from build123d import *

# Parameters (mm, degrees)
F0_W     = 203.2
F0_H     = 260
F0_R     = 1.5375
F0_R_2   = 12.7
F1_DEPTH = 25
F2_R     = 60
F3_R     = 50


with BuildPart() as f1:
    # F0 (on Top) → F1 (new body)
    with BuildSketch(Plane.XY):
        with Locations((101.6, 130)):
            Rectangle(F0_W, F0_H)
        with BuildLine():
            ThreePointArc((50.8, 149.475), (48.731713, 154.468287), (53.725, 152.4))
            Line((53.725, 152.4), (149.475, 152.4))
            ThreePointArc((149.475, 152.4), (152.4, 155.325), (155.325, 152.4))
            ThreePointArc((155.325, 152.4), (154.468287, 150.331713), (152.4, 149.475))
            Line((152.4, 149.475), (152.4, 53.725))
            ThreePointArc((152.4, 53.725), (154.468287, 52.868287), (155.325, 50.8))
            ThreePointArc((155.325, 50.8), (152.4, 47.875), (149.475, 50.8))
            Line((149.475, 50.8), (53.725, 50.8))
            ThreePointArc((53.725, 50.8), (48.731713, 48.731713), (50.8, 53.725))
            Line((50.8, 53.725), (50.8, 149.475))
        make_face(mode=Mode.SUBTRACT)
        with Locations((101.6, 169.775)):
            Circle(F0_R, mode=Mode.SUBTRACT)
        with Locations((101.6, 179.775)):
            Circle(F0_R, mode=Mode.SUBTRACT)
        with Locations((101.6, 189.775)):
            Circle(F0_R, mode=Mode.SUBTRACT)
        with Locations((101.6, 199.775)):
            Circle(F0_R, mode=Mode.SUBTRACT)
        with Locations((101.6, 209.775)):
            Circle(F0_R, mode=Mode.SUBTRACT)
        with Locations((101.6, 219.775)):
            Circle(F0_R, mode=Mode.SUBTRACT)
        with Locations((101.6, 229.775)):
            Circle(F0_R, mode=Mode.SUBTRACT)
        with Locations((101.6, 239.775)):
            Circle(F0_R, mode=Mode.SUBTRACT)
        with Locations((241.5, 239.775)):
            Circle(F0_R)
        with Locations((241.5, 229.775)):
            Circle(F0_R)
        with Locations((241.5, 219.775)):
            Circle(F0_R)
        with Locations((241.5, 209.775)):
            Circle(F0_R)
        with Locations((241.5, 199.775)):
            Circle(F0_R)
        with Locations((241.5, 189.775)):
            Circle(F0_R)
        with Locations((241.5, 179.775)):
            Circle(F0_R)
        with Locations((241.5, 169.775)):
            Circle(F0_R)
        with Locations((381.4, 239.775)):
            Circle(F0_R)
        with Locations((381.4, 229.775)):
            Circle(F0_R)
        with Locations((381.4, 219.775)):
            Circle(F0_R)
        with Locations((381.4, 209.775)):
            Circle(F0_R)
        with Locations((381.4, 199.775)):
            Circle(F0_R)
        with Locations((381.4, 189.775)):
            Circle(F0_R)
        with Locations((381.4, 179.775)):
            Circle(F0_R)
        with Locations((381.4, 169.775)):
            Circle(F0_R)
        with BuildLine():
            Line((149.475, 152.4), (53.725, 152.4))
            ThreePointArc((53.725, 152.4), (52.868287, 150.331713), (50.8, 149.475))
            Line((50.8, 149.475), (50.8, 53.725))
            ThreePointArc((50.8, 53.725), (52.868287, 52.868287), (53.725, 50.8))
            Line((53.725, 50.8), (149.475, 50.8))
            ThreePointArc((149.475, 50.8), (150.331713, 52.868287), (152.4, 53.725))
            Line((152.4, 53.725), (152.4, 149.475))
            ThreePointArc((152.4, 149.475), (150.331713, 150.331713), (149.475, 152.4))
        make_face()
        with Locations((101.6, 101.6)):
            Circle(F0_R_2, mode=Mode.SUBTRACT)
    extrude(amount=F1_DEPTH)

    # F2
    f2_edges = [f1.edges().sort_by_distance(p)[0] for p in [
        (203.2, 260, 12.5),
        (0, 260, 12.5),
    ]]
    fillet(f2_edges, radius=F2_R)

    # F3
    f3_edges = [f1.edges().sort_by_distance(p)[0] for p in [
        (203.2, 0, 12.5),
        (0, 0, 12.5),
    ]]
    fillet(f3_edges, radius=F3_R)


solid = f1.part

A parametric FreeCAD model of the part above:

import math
import FreeCAD as App
import Part
import Sketcher

V = App.Vector
Q = App.Units.Quantity


def edges_at(feature, points):
    """Names of the edges that pass closest to the given points."""
    edges = feature.Shape.Edges
    near = lambda p: min(range(len(edges)), key=lambda i: edges[i].distToShape(Part.Vertex(*p))[0])
    return sorted({f"Edge{near(p) + 1}" for p in points})

doc = App.newDocument("Part")
params = doc.addObject("Spreadsheet::Sheet", "Params")
for row, (alias, value) in enumerate([
    ("sketch1_diameter", "25.4 mm"),
    ("sketch1_height", "260 mm"),
    ("sketch1_width", "203.2 mm"),
    ("pad1_length", "25 mm"),
    ("fillet_radius", "60 mm"),
    ("fillet2_radius", "50 mm"),
], start=1):
    params.set(f"A{row}", alias)
    params.set(f"B{row}", "=" + value)
    params.setAlias(f"B{row}", alias)

body = doc.addObject("PartDesign::Body", "Body")
body.AllowCompound = True

# Sketch on XY plane
sketch1 = body.newObject("Sketcher::SketchObject", "Sketch")
sketch1.AttachmentSupport = (doc.getObject("XY_Plane"), [""])
sketch1.MapMode = "FlatFace"
sketch1.addGeometry(Part.LineSegment(V(0, 260, 0), V(0, 0, 0)), False)
sketch1.addGeometry(Part.LineSegment(V(0, 0, 0), V(203.2, 0, 0)), False)
sketch1.addGeometry(Part.LineSegment(V(203.2, 0, 0), V(203.2, 260, 0)), False)
sketch1.addGeometry(Part.LineSegment(V(203.2, 260, 0), V(0, 260, 0)), False)
sketch1.addGeometry(Part.ArcOfCircle(Part.Circle(V(50.8, 50.8, 0), V(0, 0, 1), 2.925), math.radians(90.000004), math.radians(359.999996)), False)
sketch1.addGeometry(Part.ArcOfCircle(Part.Circle(V(50.799999, 50.799999, 0), V(0, 0, 1), 2.925001), math.radians(0.000022), math.radians(89.999978)), False)
sketch1.addGeometry(Part.Circle(V(101.6, 101.6, 0), V(0, 0, 1), 12.7), False)
sketch1.addGeometry(Part.ArcOfCircle(Part.Circle(V(152.4, 50.8, 0), V(0, 0, 1), 2.925), math.radians(180), math.radians(360)), False)
sketch1.addGeometry(Part.ArcOfCircle(Part.Circle(V(152.400001, 50.799999, 0), V(0, 0, 1), 2.925001), math.radians(90.000022), math.radians(179.999978)), False)
sketch1.addGeometry(Part.ArcOfCircle(Part.Circle(V(152.399999, 50.799999, 0), V(0, 0, 1), 2.925001), math.radians(0.000022), math.radians(89.999978)), False)
sketch1.addGeometry(Part.ArcOfCircle(Part.Circle(V(50.8, 152.4, 0), V(0, 0, 1), 2.925), math.radians(0.000004), math.radians(269.999996)), False)
sketch1.addGeometry(Part.ArcOfCircle(Part.Circle(V(50.799999, 152.400001, 0), V(0, 0, 1), 2.925001), math.radians(-89.999978), math.radians(-0.000022)), False)
sketch1.addGeometry(Part.Circle(V(101.6, 169.775, 0), V(0, 0, 1), 1.5375), False)
sketch1.addGeometry(Part.Circle(V(101.6, 179.775, 0), V(0, 0, 1), 1.5375), False)
sketch1.addGeometry(Part.Circle(V(101.6, 189.775, 0), V(0, 0, 1), 1.5375), False)
sketch1.addGeometry(Part.Circle(V(101.6, 199.775, 0), V(0, 0, 1), 1.5375), False)
sketch1.addGeometry(Part.Circle(V(101.6, 209.775, 0), V(0, 0, 1), 1.5375), False)
sketch1.addGeometry(Part.Circle(V(101.6, 219.775, 0), V(0, 0, 1), 1.5375), False)
sketch1.addGeometry(Part.Circle(V(101.6, 229.775, 0), V(0, 0, 1), 1.5375), False)
sketch1.addGeometry(Part.Circle(V(101.6, 239.775, 0), V(0, 0, 1), 1.5375), False)
sketch1.addGeometry(Part.ArcOfCircle(Part.Circle(V(152.4, 152.4, 0), V(0, 0, 1), 2.925), math.radians(0), math.radians(180)), False)
sketch1.addGeometry(Part.ArcOfCircle(Part.Circle(V(152.399999, 152.400001, 0), V(0, 0, 1), 2.925001), math.radians(-89.999978), math.radians(-0.000022)), False)
sketch1.addGeometry(Part.ArcOfCircle(Part.Circle(V(152.400001, 152.400001, 0), V(0, 0, 1), 2.925001), math.radians(-179.999978), math.radians(-90.000022)), False)
sketch1.addGeometry(Part.Circle(V(241.5, 239.775, 0), V(0, 0, 1), 1.5375), False)
sketch1.addGeometry(Part.Circle(V(241.5, 229.775, 0), V(0, 0, 1), 1.5375), False)
sketch1.addGeometry(Part.Circle(V(241.5, 219.775, 0), V(0, 0, 1), 1.5375), False)
sketch1.addGeometry(Part.Circle(V(241.5, 209.775, 0), V(0, 0, 1), 1.5375), False)
sketch1.addGeometry(Part.Circle(V(241.5, 199.775, 0), V(0, 0, 1), 1.5375), False)
sketch1.addGeometry(Part.Circle(V(241.5, 189.775, 0), V(0, 0, 1), 1.5375), False)
sketch1.addGeometry(Part.Circle(V(241.5, 179.775, 0), V(0, 0, 1), 1.5375), False)
sketch1.addGeometry(Part.Circle(V(241.5, 169.775, 0), V(0, 0, 1), 1.5375), False)
sketch1.addGeometry(Part.Circle(V(381.4, 239.775, 0), V(0, 0, 1), 1.5375), False)
sketch1.addGeometry(Part.Circle(V(381.4, 229.775, 0), V(0, 0, 1), 1.5375), False)
sketch1.addGeometry(Part.Circle(V(381.4, 219.775, 0), V(0, 0, 1), 1.5375), False)
sketch1.addGeometry(Part.Circle(V(381.4, 209.775, 0), V(0, 0, 1), 1.5375), False)
sketch1.addGeometry(Part.Circle(V(381.4, 199.775, 0), V(0, 0, 1), 1.5375), False)
sketch1.addGeometry(Part.Circle(V(381.4, 189.775, 0), V(0, 0, 1), 1.5375), False)
sketch1.addGeometry(Part.Circle(V(381.4, 179.775, 0), V(0, 0, 1), 1.5375), False)
sketch1.addGeometry(Part.Circle(V(381.4, 169.775, 0), V(0, 0, 1), 1.5375), False)
sketch1.addConstraint(Sketcher.Constraint("Coincident", 0, 2, 1, 1))
sketch1.addConstraint(Sketcher.Constraint("Coincident", 1, 2, 2, 1))
sketch1.addConstraint(Sketcher.Constraint("Coincident", 2, 2, 3, 1))
sketch1.addConstraint(Sketcher.Constraint("Coincident", 3, 2, 0, 1))
sketch1.addConstraint(Sketcher.Constraint("Tangent", 4, 1, 5, 2))
sketch1.addConstraint(Sketcher.Constraint("Coincident", 5, 1, 4, 2))
sketch1.addConstraint(Sketcher.Constraint("Tangent", 7, 1, 8, 2))
sketch1.addConstraint(Sketcher.Constraint("Tangent", 8, 1, 9, 2))
sketch1.addConstraint(Sketcher.Constraint("Tangent", 9, 1, 7, 2))
sketch1.addConstraint(Sketcher.Constraint("Tangent", 10, 1, 11, 2))
sketch1.addConstraint(Sketcher.Constraint("Coincident", 11, 1, 10, 2))
sketch1.addConstraint(Sketcher.Constraint("Tangent", 20, 1, 21, 2))
sketch1.addConstraint(Sketcher.Constraint("Tangent", 21, 1, 22, 2))
sketch1.addConstraint(Sketcher.Constraint("Tangent", 22, 1, 20, 2))
sketch1.addConstraint(Sketcher.Constraint("Vertical", 0))
sketch1.addConstraint(Sketcher.Constraint("Horizontal", 1))
sketch1.addConstraint(Sketcher.Constraint("Vertical", 2))
sketch1.addConstraint(Sketcher.Constraint("Horizontal", 3))
sketch1.addConstraint(Sketcher.Constraint("Coincident", 0, 2, -1, 1))
sketch1.addConstraint(Sketcher.Constraint("Equal", 5, 7))
sketch1.addConstraint(Sketcher.Constraint("Equal", 9, 10))
sketch1.addConstraint(Sketcher.Constraint("Equal", 12, 13))
sketch1.addConstraint(Sketcher.Constraint("Equal", 13, 14))
sketch1.addConstraint(Sketcher.Constraint("Equal", 14, 15))
sketch1.addConstraint(Sketcher.Constraint("Equal", 15, 16))
sketch1.addConstraint(Sketcher.Constraint("Equal", 16, 17))
sketch1.addConstraint(Sketcher.Constraint("Equal", 17, 18))
sketch1.addConstraint(Sketcher.Constraint("Equal", 18, 19))
sketch1.addConstraint(Sketcher.Constraint("Equal", 11, 20))
sketch1.addConstraint(Sketcher.Constraint("Equal", 19, 23))
sketch1.addConstraint(Sketcher.Constraint("Equal", 23, 24))
sketch1.addConstraint(Sketcher.Constraint("Equal", 24, 25))
sketch1.addConstraint(Sketcher.Constraint("Equal", 25, 26))
sketch1.addConstraint(Sketcher.Constraint("Equal", 26, 27))
sketch1.addConstraint(Sketcher.Constraint("Equal", 27, 28))
sketch1.addConstraint(Sketcher.Constraint("Equal", 28, 29))
sketch1.addConstraint(Sketcher.Constraint("Equal", 29, 30))
sketch1.addConstraint(Sketcher.Constraint("Equal", 30, 31))
sketch1.addConstraint(Sketcher.Constraint("Equal", 31, 32))
sketch1.addConstraint(Sketcher.Constraint("Equal", 32, 33))
sketch1.addConstraint(Sketcher.Constraint("Equal", 33, 34))
sketch1.addConstraint(Sketcher.Constraint("Equal", 34, 35))
sketch1.addConstraint(Sketcher.Constraint("Equal", 35, 36))
sketch1.addConstraint(Sketcher.Constraint("Equal", 36, 37))
sketch1.addConstraint(Sketcher.Constraint("Equal", 37, 38))
sketch1.addConstraint(Sketcher.Constraint("Horizontal", 5, 3, 7, 3))
sketch1.addConstraint(Sketcher.Constraint("Horizontal", 11, 3, 20, 3))
sketch1.addConstraint(Sketcher.Constraint("Horizontal", 19, 3, 23, 3))
sketch1.addConstraint(Sketcher.Constraint("Horizontal", 18, 3, 24, 3))
sketch1.addConstraint(Sketcher.Constraint("Horizontal", 17, 3, 25, 3))
sketch1.addConstraint(Sketcher.Constraint("Horizontal", 16, 3, 26, 3))
sketch1.addConstraint(Sketcher.Constraint("Horizontal", 15, 3, 27, 3))
sketch1.addConstraint(Sketcher.Constraint("Horizontal", 14, 3, 28, 3))
sketch1.addConstraint(Sketcher.Constraint("Horizontal", 13, 3, 29, 3))
sketch1.addConstraint(Sketcher.Constraint("Horizontal", 12, 3, 30, 3))
sketch1.addConstraint(Sketcher.Constraint("Horizontal", 23, 3, 31, 3))
sketch1.addConstraint(Sketcher.Constraint("Horizontal", 24, 3, 32, 3))
sketch1.addConstraint(Sketcher.Constraint("Horizontal", 25, 3, 33, 3))
sketch1.addConstraint(Sketcher.Constraint("Horizontal", 26, 3, 34, 3))
sketch1.addConstraint(Sketcher.Constraint("Horizontal", 27, 3, 35, 3))
sketch1.addConstraint(Sketcher.Constraint("Horizontal", 28, 3, 36, 3))
sketch1.addConstraint(Sketcher.Constraint("Horizontal", 29, 3, 37, 3))
sketch1.addConstraint(Sketcher.Constraint("Horizontal", 30, 3, 38, 3))
sketch1.addConstraint(Sketcher.Constraint("Horizontal", 9, 3, 5, 1))
sketch1.addConstraint(Sketcher.Constraint("Horizontal", 5, 1, 7, 1))
sketch1.addConstraint(Sketcher.Constraint("Horizontal", 7, 1, 9, 1))
sketch1.addConstraint(Sketcher.Constraint("Horizontal", 22, 3, 10, 1))
sketch1.addConstraint(Sketcher.Constraint("Horizontal", 10, 1, 20, 1))
sketch1.addConstraint(Sketcher.Constraint("Horizontal", 20, 1, 22, 1))
sketch1.addConstraint(Sketcher.Constraint("Vertical", 5, 3, 10, 3))
sketch1.addConstraint(Sketcher.Constraint("Vertical", 6, 3, 12, 3))
sketch1.addConstraint(Sketcher.Constraint("Vertical", 12, 3, 13, 3))
sketch1.addConstraint(Sketcher.Constraint("Vertical", 13, 3, 14, 3))
sketch1.addConstraint(Sketcher.Constraint("Vertical", 14, 3, 15, 3))
sketch1.addConstraint(Sketcher.Constraint("Vertical", 15, 3, 16, 3))
sketch1.addConstraint(Sketcher.Constraint("Vertical", 16, 3, 17, 3))
sketch1.addConstraint(Sketcher.Constraint("Vertical", 17, 3, 18, 3))
sketch1.addConstraint(Sketcher.Constraint("Vertical", 18, 3, 19, 3))
sketch1.addConstraint(Sketcher.Constraint("Vertical", 9, 3, 20, 3))
sketch1.addConstraint(Sketcher.Constraint("Vertical", 23, 3, 24, 3))
sketch1.addConstraint(Sketcher.Constraint("Vertical", 24, 3, 25, 3))
sketch1.addConstraint(Sketcher.Constraint("Vertical", 25, 3, 26, 3))
sketch1.addConstraint(Sketcher.Constraint("Vertical", 26, 3, 27, 3))
sketch1.addConstraint(Sketcher.Constraint("Vertical", 27, 3, 28, 3))
sketch1.addConstraint(Sketcher.Constraint("Vertical", 28, 3, 29, 3))
sketch1.addConstraint(Sketcher.Constraint("Vertical", 29, 3, 30, 3))
sketch1.addConstraint(Sketcher.Constraint("Vertical", 31, 3, 32, 3))
sketch1.addConstraint(Sketcher.Constraint("Vertical", 32, 3, 33, 3))
sketch1.addConstraint(Sketcher.Constraint("Vertical", 33, 3, 34, 3))
sketch1.addConstraint(Sketcher.Constraint("Vertical", 34, 3, 35, 3))
sketch1.addConstraint(Sketcher.Constraint("Vertical", 35, 3, 36, 3))
sketch1.addConstraint(Sketcher.Constraint("Vertical", 36, 3, 37, 3))
sketch1.addConstraint(Sketcher.Constraint("Vertical", 37, 3, 38, 3))
sketch1.addConstraint(Sketcher.Constraint("Vertical", 11, 3, 4, 1))
sketch1.addConstraint(Sketcher.Constraint("Vertical", 22, 3, 8, 1))
sketch1.addConstraint(Sketcher.Constraint("Vertical", 4, 1, 11, 1))
sketch1.addConstraint(Sketcher.Constraint("Vertical", 8, 1, 21, 1))
sketch1.addConstraint(Sketcher.Constraint("Diameter", 6, Q("25.4 mm")))
sketch1.addConstraint(Sketcher.Constraint("DistanceY", 0, 2, 0, 1, Q("260 mm")))
sketch1.addConstraint(Sketcher.Constraint("Diameter", 12, Q("3.075 mm")))
sketch1.addConstraint(Sketcher.Constraint("DistanceX", 1, 1, 1, 2, Q("203.2 mm")))
sketch1.addConstraint(Sketcher.Constraint("Radius", 4, Q("2.925 mm")))
sketch1.addConstraint(Sketcher.Constraint("DistanceY", 12, 3, 13, 3, Q("10 mm")))
sketch1.addConstraint(Sketcher.Constraint("DistanceY", 13, 3, 14, 3, Q("10 mm")))
sketch1.addConstraint(Sketcher.Constraint("DistanceY", 14, 3, 15, 3, Q("10 mm")))
sketch1.addConstraint(Sketcher.Constraint("DistanceY", 15, 3, 16, 3, Q("10 mm")))
sketch1.addConstraint(Sketcher.Constraint("DistanceY", 16, 3, 17, 3, Q("10 mm")))
sketch1.addConstraint(Sketcher.Constraint("DistanceY", 17, 3, 18, 3, Q("10 mm")))
sketch1.addConstraint(Sketcher.Constraint("DistanceY", 18, 3, 19, 3, Q("10 mm")))
sketch1.addConstraint(Sketcher.Constraint("DistanceX", -1, 1, 4, 3, Q("50.8 mm")))
sketch1.addConstraint(Sketcher.Constraint("DistanceY", -1, 1, 4, 3, Q("50.8 mm")))
sketch1.addConstraint(Sketcher.Constraint("DistanceX", -1, 1, 6, 3, Q("101.6 mm")))
sketch1.addConstraint(Sketcher.Constraint("DistanceY", -1, 1, 6, 3, Q("101.6 mm")))
sketch1.addConstraint(Sketcher.Constraint("DistanceX", -1, 1, 7, 3, Q("152.4 mm")))
sketch1.addConstraint(Sketcher.Constraint("DistanceY", -1, 1, 10, 3, Q("152.4 mm")))
sketch1.addConstraint(Sketcher.Constraint("DistanceX", -1, 1, 23, 3, Q("241.5 mm")))
sketch1.addConstraint(Sketcher.Constraint("DistanceX", -1, 1, 31, 3, Q("381.4 mm")))
sketch1.addConstraint(Sketcher.Constraint("DistanceY", 11, 1, 12, 3, Q("20.3 mm")))
sketch1.setExpression("Constraints[97]", "Params.sketch1_diameter")
sketch1.setExpression("Constraints[98]", "Params.sketch1_height")
sketch1.setExpression("Constraints[100]", "Params.sketch1_width")
pad1 = body.newObject("PartDesign::Pad", "Pad")
pad1.Profile = sketch1
pad1.setExpression("Length", "Params.pad1_length")
doc.recompute()

fillet = body.newObject("PartDesign::Fillet", "Fillet")
fillet.Base = (pad1, edges_at(pad1, [(203.2, 260, 12.5), (0, 260, 12.5)]))
fillet.setExpression("Radius", "Params.fillet_radius")
doc.recompute()

fillet2 = body.newObject("PartDesign::Fillet", "Fillet001")
fillet2.Base = (fillet, edges_at(fillet, [(203.2, 0, 12.5), (0, 0, 12.5)]))
fillet2.setExpression("Radius", "Params.fillet2_radius")

doc.recompute()
